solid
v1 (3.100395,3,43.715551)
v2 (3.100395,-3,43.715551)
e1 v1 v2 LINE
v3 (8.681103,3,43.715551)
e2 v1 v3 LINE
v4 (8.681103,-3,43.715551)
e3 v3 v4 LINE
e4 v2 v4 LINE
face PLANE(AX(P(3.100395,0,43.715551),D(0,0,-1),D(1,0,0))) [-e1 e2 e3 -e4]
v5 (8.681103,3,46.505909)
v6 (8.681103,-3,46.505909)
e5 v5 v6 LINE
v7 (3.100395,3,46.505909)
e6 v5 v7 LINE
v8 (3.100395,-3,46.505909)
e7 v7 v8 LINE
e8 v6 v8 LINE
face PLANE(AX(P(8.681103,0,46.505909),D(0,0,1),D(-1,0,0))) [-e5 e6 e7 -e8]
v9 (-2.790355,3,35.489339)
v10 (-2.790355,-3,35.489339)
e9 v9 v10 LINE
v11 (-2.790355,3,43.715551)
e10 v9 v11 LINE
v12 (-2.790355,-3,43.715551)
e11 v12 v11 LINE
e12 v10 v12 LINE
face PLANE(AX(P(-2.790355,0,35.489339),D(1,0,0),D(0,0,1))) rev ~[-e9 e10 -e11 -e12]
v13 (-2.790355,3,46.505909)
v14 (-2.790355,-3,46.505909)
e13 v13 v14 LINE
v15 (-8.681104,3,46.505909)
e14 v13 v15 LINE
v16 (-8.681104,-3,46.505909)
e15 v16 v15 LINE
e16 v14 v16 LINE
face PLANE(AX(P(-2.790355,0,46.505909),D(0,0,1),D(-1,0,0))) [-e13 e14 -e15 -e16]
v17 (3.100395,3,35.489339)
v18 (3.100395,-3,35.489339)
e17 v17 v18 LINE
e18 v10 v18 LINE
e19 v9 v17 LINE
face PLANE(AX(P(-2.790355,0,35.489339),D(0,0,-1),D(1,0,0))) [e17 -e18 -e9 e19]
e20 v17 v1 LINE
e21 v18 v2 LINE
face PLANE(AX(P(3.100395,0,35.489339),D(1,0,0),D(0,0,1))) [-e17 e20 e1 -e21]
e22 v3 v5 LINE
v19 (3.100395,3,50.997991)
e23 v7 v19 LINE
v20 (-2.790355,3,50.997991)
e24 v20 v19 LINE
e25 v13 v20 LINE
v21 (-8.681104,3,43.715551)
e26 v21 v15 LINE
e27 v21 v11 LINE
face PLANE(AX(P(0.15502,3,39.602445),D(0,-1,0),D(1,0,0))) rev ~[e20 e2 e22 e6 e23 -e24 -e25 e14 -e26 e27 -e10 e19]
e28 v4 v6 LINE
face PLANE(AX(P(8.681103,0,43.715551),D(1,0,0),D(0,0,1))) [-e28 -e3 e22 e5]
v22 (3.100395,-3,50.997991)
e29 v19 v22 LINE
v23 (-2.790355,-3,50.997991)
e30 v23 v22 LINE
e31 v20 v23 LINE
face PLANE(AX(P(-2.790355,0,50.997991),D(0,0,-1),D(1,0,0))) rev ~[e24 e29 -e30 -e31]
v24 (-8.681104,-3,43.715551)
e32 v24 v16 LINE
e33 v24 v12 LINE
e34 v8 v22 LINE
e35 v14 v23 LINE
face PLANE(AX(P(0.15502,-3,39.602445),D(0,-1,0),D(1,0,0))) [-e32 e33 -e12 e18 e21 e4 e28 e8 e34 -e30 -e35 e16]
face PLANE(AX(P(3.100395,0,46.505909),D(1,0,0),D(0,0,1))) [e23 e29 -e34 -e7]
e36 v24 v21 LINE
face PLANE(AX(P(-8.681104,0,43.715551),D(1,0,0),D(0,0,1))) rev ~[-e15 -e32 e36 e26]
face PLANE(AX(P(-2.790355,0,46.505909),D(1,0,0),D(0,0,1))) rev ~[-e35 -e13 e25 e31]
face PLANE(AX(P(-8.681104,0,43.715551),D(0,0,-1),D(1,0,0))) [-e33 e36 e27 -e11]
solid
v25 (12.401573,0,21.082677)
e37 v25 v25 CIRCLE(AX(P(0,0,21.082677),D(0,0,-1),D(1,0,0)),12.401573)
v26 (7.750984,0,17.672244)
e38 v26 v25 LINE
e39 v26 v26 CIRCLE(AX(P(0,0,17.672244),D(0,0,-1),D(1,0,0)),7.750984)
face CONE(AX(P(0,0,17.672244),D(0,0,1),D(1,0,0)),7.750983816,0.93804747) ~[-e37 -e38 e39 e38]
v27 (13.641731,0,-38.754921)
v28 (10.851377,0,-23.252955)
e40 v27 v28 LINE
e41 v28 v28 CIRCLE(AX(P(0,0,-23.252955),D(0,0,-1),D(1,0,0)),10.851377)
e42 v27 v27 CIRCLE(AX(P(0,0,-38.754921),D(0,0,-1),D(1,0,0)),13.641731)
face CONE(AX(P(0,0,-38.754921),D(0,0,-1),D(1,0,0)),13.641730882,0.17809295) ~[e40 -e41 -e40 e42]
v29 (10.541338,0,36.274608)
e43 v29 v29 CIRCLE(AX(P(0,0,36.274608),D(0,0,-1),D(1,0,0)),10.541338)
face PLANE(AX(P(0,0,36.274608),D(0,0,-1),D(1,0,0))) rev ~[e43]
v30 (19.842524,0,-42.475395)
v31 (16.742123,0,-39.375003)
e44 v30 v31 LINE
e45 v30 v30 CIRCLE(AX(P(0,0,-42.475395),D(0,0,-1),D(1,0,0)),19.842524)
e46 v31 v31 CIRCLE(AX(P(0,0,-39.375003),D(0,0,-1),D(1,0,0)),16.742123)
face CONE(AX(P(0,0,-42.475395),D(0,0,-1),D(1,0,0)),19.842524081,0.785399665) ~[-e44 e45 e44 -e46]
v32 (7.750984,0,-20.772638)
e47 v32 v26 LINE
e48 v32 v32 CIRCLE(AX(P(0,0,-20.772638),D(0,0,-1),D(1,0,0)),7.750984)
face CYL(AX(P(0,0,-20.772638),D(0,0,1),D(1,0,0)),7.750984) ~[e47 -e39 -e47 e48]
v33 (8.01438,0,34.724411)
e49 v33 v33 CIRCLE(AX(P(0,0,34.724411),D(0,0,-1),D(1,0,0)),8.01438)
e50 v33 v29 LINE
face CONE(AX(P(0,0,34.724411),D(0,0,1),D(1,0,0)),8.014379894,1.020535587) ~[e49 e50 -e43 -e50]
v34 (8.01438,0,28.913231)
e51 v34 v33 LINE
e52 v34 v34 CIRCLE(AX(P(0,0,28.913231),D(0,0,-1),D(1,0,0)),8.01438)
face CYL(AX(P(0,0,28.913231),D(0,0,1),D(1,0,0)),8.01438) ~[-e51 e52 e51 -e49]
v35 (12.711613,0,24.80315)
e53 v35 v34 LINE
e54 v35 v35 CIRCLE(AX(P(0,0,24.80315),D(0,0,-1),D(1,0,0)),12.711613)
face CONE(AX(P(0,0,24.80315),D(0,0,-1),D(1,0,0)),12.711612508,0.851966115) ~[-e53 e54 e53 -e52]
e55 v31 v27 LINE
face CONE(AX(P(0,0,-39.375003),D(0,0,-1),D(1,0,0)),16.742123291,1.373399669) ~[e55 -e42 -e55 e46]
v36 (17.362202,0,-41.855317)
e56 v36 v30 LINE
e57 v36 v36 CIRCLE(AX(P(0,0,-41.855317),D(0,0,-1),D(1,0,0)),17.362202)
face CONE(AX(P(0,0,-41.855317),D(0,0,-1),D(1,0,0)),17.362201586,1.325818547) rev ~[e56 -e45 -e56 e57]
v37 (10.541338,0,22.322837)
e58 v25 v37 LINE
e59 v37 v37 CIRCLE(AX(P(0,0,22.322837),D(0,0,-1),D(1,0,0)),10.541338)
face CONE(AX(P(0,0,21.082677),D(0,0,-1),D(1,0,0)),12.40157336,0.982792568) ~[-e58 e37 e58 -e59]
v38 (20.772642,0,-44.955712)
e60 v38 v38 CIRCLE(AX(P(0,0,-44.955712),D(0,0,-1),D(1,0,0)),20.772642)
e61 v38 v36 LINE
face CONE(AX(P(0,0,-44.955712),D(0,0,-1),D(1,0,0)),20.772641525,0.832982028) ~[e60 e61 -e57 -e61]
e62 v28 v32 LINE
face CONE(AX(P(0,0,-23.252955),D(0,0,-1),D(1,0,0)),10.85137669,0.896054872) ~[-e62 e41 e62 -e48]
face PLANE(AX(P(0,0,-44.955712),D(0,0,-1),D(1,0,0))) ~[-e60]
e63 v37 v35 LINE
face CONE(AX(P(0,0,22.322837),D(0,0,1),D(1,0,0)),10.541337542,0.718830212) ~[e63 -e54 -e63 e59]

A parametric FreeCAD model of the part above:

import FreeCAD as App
import Part
import Sketcher

V = App.Vector
Q = App.Units.Quantity

doc = App.newDocument("Part")
body = doc.addObject("PartDesign::Body", "Body")

sketch1 = body.newObject("Sketcher::SketchObject", "Sketch")
sketch1.AttachmentSupport = (doc.getObject("XZ_Plane"), [""])
sketch1.MapMode = "FlatFace"
sketch1.addGeometry([
    Part.LineSegment(V(0, 36.3, 0), V(0, -45, 0)),
    Part.LineSegment(V(0, -45, 0), V(20.8, -45, 0)),
    Part.LineSegment(V(20.8, -45, 0), V(17.4, -41.9, 0)),
    Part.LineSegment(V(17.4, -41.9, 0), V(19.8, -42.5, 0)),
    Part.LineSegment(V(19.8, -42.5, 0), V(16.7, -39.4, 0)),
    Part.LineSegment(V(16.7, -39.4, 0), V(13.6, -38.8, 0)),
    Part.LineSegment(V(13.6, -38.8, 0), V(10.9, -23.3, 0)),
    Part.LineSegment(V(10.9, -23.3, 0), V(7.8, -20.8, 0)),
    Part.LineSegment(V(7.8, -20.8, 0), V(7.8, 17.7, 0)),
    Part.LineSegment(V(7.8, 17.7, 0), V(12.4, 21.1, 0)),
    Part.LineSegment(V(12.4, 21.1, 0), V(10.5, 22.3, 0)),
    Part.LineSegment(V(10.5, 22.3, 0), V(12.7, 24.8, 0)),
    Part.LineSegment(V(12.7, 24.8, 0), V(8, 28.9, 0)),
    Part.LineSegment(V(8, 28.9, 0), V(8, 34.7, 0)),
    Part.LineSegment(V(8, 34.7, 0), V(10.5, 36.3, 0)),
    Part.LineSegment(V(10.5, 36.3, 0), V(0, 36.3, 0)),
], False)
sketch1.addConstraint([
    Sketcher.Constraint("Coincident", 0, 2, 1, 1),
    Sketcher.Constraint("Coincident", 1, 2, 2, 1),
    Sketcher.Constraint("Coincident", 2, 2, 3, 1),
    Sketcher.Constraint("Coincident", 3, 2, 4, 1),
    Sketcher.Constraint("Coincident", 4, 2, 5, 1),
    Sketcher.Constraint("Coincident", 5, 2, 6, 1),
    Sketcher.Constraint("Coincident", 6, 2, 7, 1),
    Sketcher.Constraint("Coincident", 7, 2, 8, 1),
    Sketcher.Constraint("Coincident", 8, 2, 9, 1),
    Sketcher.Constraint("Coincident", 9, 2, 10, 1),
    Sketcher.Constraint("Coincident", 10, 2, 11, 1),
    Sketcher.Constraint("Coincident", 11, 2, 12, 1),
    Sketcher.Constraint("Coincident", 12, 2, 13, 1),
    Sketcher.Constraint("Coincident", 13, 2, 14, 1),
    Sketcher.Constraint("Coincident", 14, 2, 15, 1),
    Sketcher.Constraint("Coincident", 15, 2, 0, 1),
    Sketcher.Constraint("Vertical", 0),
    Sketcher.Constraint("Horizontal", 1),
    Sketcher.Constraint("Vertical", 8),
    Sketcher.Constraint("Vertical", 13),
    Sketcher.Constraint("Horizontal", 15),
    Sketcher.Constraint("PointOnObject", 0, 2, -2),
    Sketcher.Constraint("Perpendicular", 11, 12),
    Sketcher.Constraint("Vertical", 10, 2, 14, 2),
    Sketcher.Constraint("Angle", 5, Q("168.690005 deg")),
    Sketcher.Constraint("DistanceX", 1, 1, 1, 2, 20.772642),
    Sketcher.Constraint("DistanceY", 0, 2, 0, 1, 81.23032),
    Sketcher.Constraint("DistanceY", 13, 1, 13, 2, 5.81118),
    Sketcher.Constraint("DistanceX", -1, 1, 2, 2, 17.362202),
    Sketcher.Constraint("DistanceX", 4, 2, 3, 2, 3.100401),
    Sketcher.Constraint("DistanceY", 6, 2, 8, 2, 40.925199),
    Sketcher.Constraint("DistanceY", 5, 2, 9, 2, 59.837598),
    Sketcher.Constraint("Distance", 7, 3.970442),
    Sketcher.Constraint("Distance", 11, 3.295762),
    Sketcher.Constraint("Distance", 14, 2.964562),
    Sketcher.Constraint("DistanceX", 15, 2, 15, 1, 10.541338),
    Sketcher.Constraint("DistanceY", 8, 1, 8, 2, 38.444882),
    Sketcher.Constraint("DistanceY", 0, 2, -1, 1, 44.955712),
    Sketcher.Constraint("DistanceX", -1, 1, 5, 2, 13.641731),
    Sketcher.Constraint("DistanceY", 5, 2, -1, 1, 38.754921),
    Sketcher.Constraint("DistanceY", -1, 1, 11, 2, 24.80315),
    Sketcher.Constraint("DistanceX", -1, 1, 12, 2, 8.01438),
    Sketcher.Constraint("DistanceY", 3, 2, 2, 2, 0.620078),
    Sketcher.Constraint("DistanceX", 4, 2, 2, 2, 0.620078),
    Sketcher.Constraint("DistanceY", 3, 2, 4, 2, 3.100391),
    Sketcher.Constraint("DistanceY", 4, 2, 6, 2, 16.122049),
    Sketcher.Constraint("DistanceX", 7, 2, 4, 2, 8.991139),
    Sketcher.Constraint("DistanceX", 8, 2, 9, 2, 4.65059),
])
revolution = body.newObject("PartDesign::Revolution", "Revolution")
revolution.Profile = sketch1
revolution.ReferenceAxis = (sketch1, ["V_Axis"])
revolution.Angle = 360
body2 = doc.addObject("PartDesign::Body", "Body001")

sketch2 = body2.newObject("Sketcher::SketchObject", "Sketch001")
sketch2.AttachmentSupport = (doc.getObject("XZ_Plane001"), [""])
sketch2.MapMode = "FlatFace"
sketch2.addGeometry([
    Part.LineSegment(V(-2.8, 43.7, 0), V(-2.8, 35.5, 0)),
    Part.LineSegment(V(-2.8, 35.5, 0), V(3.1, 35.5, 0)),
    Part.LineSegment(V(3.1, 35.5, 0), V(3.1, 43.7, 0)),
    Part.LineSegment(V(3.1, 43.7, 0), V(8.7, 43.7, 0)),
    Part.LineSegment(V(8.7, 43.7, 0), V(8.7, 46.5, 0)),
    Part.LineSegment(V(8.7, 46.5, 0), V(3.1, 46.5, 0)),
    Part.LineSegment(V(3.1, 46.5, 0), V(3.1, 51, 0)),
    Part.LineSegment(V(3.1, 51, 0), V(-2.8, 51, 0)),
    Part.LineSegment(V(-2.8, 51, 0), V(-2.8, 46.5, 0)),
    Part.LineSegment(V(-2.8, 46.5, 0), V(-8.7, 46.5, 0)),
    Part.LineSegment(V(-8.7, 46.5, 0), V(-8.7, 43.7, 0)),
    Part.LineSegment(V(-8.7, 43.7, 0), V(-2.8, 43.7, 0)),
], False)
sketch2.addConstraint([
    Sketcher.Constraint("Coincident", 0, 2, 1, 1),
    Sketcher.Constraint("Coincident", 1, 2, 2, 1),
    Sketcher.Constraint("Coincident", 2, 2, 3, 1),
    Sketcher.Constraint("Coincident", 3, 2, 4, 1),
    Sketcher.Constraint("Coincident", 4, 2, 5, 1),
    Sketcher.Constraint("Coincident", 5, 2, 6, 1),
    Sketcher.Constraint("Coincident", 6, 2, 7, 1),
    Sketcher.Constraint("Coincident", 7, 2, 8, 1),
    Sketcher.Constraint("Coincident", 8, 2, 9, 1),
    Sketcher.Constraint("Coincident", 9, 2, 10, 1),
    Sketcher.Constraint("Coincident", 10, 2, 11, 1),
    Sketcher.Constraint("Coincident", 11, 2, 0, 1),
    Sketcher.Constraint("Vertical", 0),
    Sketcher.Constraint("Horizontal", 1),
    Sketcher.Constraint("Vertical", 2),
    Sketcher.Constraint("Horizontal", 3),
    Sketcher.Constraint("Vertical", 4),
    Sketcher.Constraint("Horizontal", 5),
    Sketcher.Constraint("Vertical", 6),
    Sketcher.Constraint("Horizontal", 7),
    Sketcher.Constraint("Vertical", 8),
    Sketcher.Constraint("Horizontal", 9),
    Sketcher.Constraint("Vertical", 10),
    Sketcher.Constraint("Horizontal", 11),
    Sketcher.Constraint("Symmetric", 4, 2, 9, 2, -2),
    Sketcher.Constraint("Horizontal", 3, 2, 10, 2),
    Sketcher.Constraint("Vertical", 2, 2, 5, 2),
    Sketcher.Constraint("Vertical", 0, 2, 7, 2),
    Sketcher.Constraint("Equal", 7, 9),
    Sketcher.Constraint("DistanceX", 1, 1, 1, 2, 5.89075),
    Sketcher.Constraint("DistanceY", 6, 1, 6, 2, 4.492082),
    Sketcher.Constraint("DistanceX", 3, 1, 3, 2, 5.580707),
    Sketcher.Constraint("DistanceY", 0, 2, 0, 1, 8.226212),
    Sketcher.Constraint("DistanceY", 4, 1, 4, 2, 2.790358),
    Sketcher.Constraint("DistanceY", -1, 1, 0, 2, 35.489339),
])
pad1 = body2.newObject("PartDesign::Pad", "Pad")
pad1.Profile = sketch2
pad1.Type = "TwoLengths"
pad1.Length = 3
pad1.Length2 = 3

doc.recompute()
